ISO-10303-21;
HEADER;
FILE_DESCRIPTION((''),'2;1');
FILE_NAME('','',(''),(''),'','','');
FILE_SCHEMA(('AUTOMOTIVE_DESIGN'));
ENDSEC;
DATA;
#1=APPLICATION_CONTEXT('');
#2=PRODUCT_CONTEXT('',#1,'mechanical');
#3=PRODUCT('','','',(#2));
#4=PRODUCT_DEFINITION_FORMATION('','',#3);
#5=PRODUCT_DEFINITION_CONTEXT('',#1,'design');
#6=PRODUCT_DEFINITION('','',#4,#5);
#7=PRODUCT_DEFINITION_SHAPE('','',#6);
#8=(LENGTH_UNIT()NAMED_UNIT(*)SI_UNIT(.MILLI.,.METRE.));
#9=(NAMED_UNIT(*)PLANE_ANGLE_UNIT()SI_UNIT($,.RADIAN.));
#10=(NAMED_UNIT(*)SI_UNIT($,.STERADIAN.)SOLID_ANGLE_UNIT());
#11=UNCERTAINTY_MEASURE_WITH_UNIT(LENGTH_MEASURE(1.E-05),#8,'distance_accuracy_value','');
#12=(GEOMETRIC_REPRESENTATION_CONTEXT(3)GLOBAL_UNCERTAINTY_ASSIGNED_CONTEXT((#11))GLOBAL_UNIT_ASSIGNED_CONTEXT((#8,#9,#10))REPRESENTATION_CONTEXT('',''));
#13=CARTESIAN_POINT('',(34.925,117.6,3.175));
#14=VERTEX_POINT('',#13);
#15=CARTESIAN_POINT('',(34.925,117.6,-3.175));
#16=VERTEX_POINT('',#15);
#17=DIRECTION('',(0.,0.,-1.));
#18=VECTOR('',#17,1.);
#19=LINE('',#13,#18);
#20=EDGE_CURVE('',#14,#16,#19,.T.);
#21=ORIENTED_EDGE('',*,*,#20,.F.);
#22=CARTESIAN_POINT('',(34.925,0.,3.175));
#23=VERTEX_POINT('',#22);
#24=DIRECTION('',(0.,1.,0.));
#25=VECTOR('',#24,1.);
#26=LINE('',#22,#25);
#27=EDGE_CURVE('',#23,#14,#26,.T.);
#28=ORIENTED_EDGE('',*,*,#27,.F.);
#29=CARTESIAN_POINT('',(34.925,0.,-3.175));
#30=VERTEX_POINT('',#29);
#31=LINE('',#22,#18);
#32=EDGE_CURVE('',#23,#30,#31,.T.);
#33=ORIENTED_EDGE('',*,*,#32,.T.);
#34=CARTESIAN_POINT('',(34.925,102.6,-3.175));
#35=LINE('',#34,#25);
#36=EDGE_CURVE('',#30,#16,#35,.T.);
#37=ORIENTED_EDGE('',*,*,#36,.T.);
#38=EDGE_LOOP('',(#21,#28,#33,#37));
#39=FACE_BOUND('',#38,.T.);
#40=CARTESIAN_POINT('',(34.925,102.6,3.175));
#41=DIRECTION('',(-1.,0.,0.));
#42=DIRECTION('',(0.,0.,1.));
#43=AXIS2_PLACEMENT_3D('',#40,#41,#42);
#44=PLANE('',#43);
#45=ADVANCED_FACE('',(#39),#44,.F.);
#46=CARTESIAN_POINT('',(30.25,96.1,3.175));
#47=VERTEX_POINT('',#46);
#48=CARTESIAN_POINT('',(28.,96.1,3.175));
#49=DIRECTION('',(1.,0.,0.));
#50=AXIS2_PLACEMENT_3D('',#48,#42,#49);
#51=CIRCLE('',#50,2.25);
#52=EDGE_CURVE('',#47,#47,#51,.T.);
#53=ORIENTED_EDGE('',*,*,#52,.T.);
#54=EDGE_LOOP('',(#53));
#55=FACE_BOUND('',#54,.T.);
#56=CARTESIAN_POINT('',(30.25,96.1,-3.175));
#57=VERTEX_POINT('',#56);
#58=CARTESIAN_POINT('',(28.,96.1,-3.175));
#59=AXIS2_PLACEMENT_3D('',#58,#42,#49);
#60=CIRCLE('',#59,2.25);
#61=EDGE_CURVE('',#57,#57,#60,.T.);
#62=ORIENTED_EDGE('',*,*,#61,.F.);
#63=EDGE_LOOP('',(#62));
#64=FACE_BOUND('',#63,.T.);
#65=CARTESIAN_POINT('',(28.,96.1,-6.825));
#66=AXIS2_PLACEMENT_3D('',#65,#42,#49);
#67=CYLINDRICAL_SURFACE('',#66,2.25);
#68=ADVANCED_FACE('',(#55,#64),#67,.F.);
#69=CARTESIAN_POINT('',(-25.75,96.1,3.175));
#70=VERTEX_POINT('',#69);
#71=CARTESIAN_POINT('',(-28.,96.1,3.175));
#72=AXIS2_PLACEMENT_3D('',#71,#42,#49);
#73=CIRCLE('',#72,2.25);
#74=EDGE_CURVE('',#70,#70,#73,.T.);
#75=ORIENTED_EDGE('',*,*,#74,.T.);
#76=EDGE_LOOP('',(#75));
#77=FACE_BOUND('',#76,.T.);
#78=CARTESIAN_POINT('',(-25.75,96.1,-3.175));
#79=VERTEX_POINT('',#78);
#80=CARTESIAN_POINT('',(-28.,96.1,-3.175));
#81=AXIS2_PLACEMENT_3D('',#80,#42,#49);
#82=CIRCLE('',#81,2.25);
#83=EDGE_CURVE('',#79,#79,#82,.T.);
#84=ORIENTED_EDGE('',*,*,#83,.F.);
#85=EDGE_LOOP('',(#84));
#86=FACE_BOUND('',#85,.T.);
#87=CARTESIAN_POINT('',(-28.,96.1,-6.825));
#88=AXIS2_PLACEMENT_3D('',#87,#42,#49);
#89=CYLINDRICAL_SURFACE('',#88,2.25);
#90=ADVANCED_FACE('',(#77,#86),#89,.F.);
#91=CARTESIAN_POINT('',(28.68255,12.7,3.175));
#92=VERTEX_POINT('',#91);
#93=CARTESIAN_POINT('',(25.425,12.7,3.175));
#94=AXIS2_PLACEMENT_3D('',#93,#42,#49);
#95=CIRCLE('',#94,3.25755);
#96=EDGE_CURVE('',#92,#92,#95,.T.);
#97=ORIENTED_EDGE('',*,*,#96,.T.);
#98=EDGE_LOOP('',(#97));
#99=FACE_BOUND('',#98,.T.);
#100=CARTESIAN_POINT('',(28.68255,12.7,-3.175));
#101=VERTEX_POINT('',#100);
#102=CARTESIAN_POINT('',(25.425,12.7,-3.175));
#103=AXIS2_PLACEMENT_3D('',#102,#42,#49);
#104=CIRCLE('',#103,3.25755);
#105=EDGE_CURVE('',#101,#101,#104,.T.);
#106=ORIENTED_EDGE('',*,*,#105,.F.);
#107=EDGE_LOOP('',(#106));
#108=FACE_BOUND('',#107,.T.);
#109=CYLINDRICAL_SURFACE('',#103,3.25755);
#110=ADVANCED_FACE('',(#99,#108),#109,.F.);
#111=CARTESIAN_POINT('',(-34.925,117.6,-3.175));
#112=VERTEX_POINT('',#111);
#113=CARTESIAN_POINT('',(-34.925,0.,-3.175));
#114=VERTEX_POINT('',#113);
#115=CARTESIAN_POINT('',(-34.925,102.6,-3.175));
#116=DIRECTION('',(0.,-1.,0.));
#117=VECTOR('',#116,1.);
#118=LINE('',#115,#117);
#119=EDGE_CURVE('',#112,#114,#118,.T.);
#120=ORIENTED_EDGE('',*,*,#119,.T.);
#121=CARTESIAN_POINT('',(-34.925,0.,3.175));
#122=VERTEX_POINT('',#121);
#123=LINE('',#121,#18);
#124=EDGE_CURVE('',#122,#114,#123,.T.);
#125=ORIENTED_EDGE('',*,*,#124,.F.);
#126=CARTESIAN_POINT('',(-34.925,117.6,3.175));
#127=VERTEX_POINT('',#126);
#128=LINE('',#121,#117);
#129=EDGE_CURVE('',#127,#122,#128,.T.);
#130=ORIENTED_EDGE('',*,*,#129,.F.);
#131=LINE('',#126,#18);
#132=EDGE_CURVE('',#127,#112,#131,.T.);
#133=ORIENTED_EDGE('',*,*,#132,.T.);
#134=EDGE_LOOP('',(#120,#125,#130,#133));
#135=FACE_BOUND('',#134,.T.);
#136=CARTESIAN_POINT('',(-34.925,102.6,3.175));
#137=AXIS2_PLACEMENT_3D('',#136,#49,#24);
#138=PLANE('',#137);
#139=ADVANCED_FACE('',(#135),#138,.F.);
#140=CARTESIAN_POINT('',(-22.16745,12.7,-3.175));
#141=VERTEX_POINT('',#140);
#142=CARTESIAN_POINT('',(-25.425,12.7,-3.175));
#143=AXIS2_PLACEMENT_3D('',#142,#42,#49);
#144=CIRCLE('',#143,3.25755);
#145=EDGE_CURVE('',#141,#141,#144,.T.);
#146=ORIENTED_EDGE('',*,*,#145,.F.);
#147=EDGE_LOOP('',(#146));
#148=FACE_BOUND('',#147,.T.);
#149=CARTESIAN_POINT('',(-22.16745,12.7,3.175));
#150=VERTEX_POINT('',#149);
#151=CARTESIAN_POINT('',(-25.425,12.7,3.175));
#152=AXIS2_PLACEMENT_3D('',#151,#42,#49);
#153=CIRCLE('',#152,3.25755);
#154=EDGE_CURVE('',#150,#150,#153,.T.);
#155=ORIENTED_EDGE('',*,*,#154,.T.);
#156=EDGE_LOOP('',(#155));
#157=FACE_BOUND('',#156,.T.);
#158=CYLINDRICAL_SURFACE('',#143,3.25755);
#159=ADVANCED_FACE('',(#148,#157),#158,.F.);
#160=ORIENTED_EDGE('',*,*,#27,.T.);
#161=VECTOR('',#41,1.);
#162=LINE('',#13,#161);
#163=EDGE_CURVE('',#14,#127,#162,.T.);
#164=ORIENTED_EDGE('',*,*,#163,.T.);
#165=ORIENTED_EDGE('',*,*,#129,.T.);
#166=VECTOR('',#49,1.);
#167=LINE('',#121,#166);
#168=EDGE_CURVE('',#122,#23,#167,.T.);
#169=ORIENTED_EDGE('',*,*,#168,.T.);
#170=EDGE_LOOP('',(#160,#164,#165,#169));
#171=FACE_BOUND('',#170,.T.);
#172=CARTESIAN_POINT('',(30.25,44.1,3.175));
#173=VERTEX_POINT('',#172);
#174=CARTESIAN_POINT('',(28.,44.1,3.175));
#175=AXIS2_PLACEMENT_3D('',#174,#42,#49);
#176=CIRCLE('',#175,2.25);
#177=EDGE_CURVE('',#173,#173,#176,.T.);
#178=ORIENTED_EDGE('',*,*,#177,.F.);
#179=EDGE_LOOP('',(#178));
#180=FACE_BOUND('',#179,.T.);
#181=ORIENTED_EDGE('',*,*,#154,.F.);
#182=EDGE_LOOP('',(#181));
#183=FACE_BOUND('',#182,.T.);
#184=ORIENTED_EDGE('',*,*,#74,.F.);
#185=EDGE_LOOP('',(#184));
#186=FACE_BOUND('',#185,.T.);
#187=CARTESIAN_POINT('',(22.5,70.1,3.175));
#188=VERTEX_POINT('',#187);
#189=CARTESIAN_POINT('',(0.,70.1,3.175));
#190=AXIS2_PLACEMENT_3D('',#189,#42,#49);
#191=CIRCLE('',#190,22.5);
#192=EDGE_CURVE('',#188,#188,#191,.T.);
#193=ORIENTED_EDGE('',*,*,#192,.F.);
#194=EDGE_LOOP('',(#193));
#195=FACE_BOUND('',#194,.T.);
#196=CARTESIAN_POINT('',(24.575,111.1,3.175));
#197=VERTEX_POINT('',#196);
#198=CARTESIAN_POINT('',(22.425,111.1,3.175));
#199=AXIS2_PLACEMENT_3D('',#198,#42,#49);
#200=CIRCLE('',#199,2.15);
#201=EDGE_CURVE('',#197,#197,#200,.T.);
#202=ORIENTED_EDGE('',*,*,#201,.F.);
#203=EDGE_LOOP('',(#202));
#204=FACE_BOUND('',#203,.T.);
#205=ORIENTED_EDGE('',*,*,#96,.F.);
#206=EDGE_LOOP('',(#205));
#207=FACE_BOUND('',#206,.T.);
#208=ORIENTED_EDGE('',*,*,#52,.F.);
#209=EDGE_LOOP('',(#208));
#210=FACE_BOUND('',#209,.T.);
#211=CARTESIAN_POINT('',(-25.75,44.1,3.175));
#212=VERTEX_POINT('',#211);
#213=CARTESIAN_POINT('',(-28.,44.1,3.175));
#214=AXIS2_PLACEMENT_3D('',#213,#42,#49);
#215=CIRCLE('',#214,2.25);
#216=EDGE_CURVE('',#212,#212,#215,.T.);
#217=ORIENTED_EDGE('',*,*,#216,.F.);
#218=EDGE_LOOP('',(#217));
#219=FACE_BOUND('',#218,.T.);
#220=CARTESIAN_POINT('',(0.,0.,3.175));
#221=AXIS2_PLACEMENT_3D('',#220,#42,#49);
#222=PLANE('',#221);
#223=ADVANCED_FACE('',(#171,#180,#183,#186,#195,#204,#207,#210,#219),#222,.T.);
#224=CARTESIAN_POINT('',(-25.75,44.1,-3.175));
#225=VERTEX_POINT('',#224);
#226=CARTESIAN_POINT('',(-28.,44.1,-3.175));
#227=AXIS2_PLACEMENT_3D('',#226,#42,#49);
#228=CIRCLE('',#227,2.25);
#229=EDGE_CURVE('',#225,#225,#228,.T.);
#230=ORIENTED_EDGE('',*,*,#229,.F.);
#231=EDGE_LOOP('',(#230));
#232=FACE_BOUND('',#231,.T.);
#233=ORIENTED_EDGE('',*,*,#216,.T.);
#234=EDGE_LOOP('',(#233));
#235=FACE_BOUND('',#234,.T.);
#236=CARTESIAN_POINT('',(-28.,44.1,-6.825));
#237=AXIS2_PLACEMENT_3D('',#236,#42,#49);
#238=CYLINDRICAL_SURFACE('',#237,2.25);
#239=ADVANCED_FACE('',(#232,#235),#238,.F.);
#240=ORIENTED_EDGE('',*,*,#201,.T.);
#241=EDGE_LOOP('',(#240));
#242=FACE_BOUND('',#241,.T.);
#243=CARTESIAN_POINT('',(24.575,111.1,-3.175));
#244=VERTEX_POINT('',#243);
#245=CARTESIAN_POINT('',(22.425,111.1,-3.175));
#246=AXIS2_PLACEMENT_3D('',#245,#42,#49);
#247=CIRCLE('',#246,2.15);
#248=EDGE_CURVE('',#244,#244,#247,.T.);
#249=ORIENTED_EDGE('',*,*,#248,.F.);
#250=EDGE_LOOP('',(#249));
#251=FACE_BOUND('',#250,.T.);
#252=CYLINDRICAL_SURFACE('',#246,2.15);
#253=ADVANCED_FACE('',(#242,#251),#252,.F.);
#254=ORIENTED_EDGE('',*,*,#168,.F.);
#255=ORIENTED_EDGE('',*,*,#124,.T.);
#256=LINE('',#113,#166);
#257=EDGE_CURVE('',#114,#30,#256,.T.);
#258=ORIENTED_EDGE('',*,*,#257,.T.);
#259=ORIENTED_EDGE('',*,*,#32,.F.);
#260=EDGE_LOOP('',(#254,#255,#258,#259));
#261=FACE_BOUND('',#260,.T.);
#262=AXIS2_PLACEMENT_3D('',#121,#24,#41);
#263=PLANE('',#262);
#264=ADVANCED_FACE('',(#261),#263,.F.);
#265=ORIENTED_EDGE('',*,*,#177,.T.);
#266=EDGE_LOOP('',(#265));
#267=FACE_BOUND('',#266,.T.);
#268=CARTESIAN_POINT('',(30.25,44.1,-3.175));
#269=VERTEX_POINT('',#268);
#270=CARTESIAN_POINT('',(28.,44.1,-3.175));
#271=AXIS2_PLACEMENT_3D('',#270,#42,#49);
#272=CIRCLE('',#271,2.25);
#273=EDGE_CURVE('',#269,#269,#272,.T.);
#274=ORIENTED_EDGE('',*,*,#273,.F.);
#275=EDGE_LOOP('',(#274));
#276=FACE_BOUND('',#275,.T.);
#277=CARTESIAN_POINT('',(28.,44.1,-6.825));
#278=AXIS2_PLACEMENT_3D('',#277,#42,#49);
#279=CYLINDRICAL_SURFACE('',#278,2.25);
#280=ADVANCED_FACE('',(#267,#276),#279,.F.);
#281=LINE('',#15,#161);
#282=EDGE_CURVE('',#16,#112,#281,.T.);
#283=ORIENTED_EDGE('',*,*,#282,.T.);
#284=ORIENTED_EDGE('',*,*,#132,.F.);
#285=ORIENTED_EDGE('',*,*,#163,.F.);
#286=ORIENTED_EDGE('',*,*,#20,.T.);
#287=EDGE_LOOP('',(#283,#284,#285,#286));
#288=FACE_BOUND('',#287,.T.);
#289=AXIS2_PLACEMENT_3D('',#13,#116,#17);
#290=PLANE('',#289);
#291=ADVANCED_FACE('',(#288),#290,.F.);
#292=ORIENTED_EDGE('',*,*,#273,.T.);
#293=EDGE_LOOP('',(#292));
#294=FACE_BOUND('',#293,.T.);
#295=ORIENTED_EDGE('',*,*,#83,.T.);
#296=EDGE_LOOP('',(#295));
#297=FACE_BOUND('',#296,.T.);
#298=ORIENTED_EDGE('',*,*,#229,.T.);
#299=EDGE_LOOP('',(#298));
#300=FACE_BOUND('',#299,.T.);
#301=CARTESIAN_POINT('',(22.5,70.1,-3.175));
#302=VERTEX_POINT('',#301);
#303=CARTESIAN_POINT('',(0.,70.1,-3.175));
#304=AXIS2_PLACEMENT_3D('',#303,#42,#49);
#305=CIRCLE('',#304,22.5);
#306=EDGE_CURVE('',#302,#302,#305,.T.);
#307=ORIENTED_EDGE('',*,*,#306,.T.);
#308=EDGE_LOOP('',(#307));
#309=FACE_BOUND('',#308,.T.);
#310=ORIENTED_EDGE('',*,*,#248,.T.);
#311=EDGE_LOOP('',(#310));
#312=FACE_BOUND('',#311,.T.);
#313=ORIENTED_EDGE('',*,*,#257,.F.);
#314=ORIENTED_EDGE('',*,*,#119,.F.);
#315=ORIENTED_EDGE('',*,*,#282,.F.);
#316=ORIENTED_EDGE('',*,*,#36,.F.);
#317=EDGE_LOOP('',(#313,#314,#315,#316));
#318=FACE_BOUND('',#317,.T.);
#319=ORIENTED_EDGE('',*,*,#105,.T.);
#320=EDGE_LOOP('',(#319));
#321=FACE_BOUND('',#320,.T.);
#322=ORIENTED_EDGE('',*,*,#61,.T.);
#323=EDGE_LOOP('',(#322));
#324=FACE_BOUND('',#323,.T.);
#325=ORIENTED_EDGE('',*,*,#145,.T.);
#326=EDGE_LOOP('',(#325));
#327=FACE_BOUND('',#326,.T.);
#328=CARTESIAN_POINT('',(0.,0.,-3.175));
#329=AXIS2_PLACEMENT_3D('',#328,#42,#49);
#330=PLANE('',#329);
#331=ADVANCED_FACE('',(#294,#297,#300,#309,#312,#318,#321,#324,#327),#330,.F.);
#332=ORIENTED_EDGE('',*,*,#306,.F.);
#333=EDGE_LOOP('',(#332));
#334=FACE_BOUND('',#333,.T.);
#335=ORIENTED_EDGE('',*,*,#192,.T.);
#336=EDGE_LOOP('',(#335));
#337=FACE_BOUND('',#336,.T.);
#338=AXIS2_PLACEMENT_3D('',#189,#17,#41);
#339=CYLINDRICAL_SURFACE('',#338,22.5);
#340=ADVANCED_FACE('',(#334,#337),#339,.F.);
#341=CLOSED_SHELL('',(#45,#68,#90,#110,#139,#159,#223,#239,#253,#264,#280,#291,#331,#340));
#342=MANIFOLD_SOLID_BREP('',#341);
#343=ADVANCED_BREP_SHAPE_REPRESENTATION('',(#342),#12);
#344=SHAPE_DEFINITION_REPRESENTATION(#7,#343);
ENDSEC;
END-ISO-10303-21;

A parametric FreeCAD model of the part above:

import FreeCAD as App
import Part
import Sketcher
from FreeCAD import Vector

doc = App.newDocument("Part")
body = doc.addObject("PartDesign::Body", "Body")

sketch1 = body.newObject("Sketcher::SketchObject", "Sketch")
sketch1.AttachmentSupport = (doc.getObject("XY_Plane"), [""])
sketch1.MapMode = "FlatFace"
sketch1.addGeometry(Part.LineSegment(Vector(-34.925, 0, 0), Vector(34.925, 0, 0)), False)
sketch1.addGeometry(Part.LineSegment(Vector(34.925, 0, 0), Vector(34.925, 117.6, 0)), False)
sketch1.addGeometry(Part.LineSegment(Vector(34.925, 117.6, 0), Vector(-34.925, 117.6, 0)), False)
sketch1.addGeometry(Part.LineSegment(Vector(-34.925, 117.6, 0), Vector(-34.925, 0, 0)), False)
sketch1.addGeometry(Part.Circle(Vector(0, 70.1, 0), Vector(0, 0, 1), 22.5), False)
sketch1.addConstraint(Sketcher.Constraint("Coincident", 0, 2, 1, 1))
sketch1.addConstraint(Sketcher.Constraint("Coincident", 1, 2, 2, 1))
sketch1.addConstraint(Sketcher.Constraint("Coincident", 2, 2, 3, 1))
sketch1.addConstraint(Sketcher.Constraint("Coincident", 3, 2, 0, 1))
sketch1.addConstraint(Sketcher.Constraint("Horizontal", 0))
sketch1.addConstraint(Sketcher.Constraint("Vertical", 1))
sketch1.addConstraint(Sketcher.Constraint("Horizontal", 2))
sketch1.addConstraint(Sketcher.Constraint("Vertical", 3))
sketch1.addConstraint(Sketcher.Constraint("Symmetric", 0, 2, 3, 2, -1, 1))
sketch1.addConstraint(Sketcher.Constraint("PointOnObject", 4, 3, -2))
sketch1.addConstraint(Sketcher.Constraint("Diameter", 4, 45.0))
sketch1.addConstraint(Sketcher.Constraint("DistanceY", 1, 1, 1, 2, 117.6))
sketch1.addConstraint(Sketcher.Constraint("DistanceX", 0, 1, 0, 2, 69.85))
sketch1.addConstraint(Sketcher.Constraint("DistanceY", -1, 1, 4, 3, 70.1))
pad1 = body.newObject("PartDesign::Pad", "Pad")
pad1.Profile = sketch1
pad1.Length = 6.35
pad1.Midplane = True

sketch2 = body.newObject("Sketcher::SketchObject", "Sketch001")
sketch2.AttachmentSupport = (doc.getObject("XY_Plane"), [""])
sketch2.MapMode = "FlatFace"
sketch2.AttachmentOffset = App.Placement(Vector(0, 0, 3.175), App.Rotation())
sketch2.addGeometry(Part.Circle(Vector(-25.425, 12.7, 0), Vector(0, 0, 1), 3.25755), False)
sketch2.addGeometry(Part.Circle(Vector(25.425, 12.7, 0), Vector(0, 0, 1), 3.25755), False)
sketch2.addGeometry(Part.Circle(Vector(22.425, 111.1, 0), Vector(0, 0, 1), 2.15), False)
sketch2.addConstraint(Sketcher.Constraint("Equal", 0, 1))
sketch2.addConstraint(Sketcher.Constraint("Symmetric", 0, 3, 1, 3, -2))
sketch2.addConstraint(Sketcher.Constraint("Diameter", 2, 4.3))
sketch2.addConstraint(Sketcher.Constraint("DistanceX", 2, 3, 1, 3, 3.0))
sketch2.addConstraint(Sketcher.Constraint("Diameter", 0, 6.5151))
sketch2.addConstraint(Sketcher.Constraint("DistanceY", -1, 1, 0, 3, 12.7))
sketch2.addConstraint(Sketcher.Constraint("DistanceY", -1, 1, 2, 3, 111.1))
sketch2.addConstraint(Sketcher.Constraint("DistanceX", 0, 3, 1, 3, 50.85))
pocket1 = body.newObject("PartDesign::Pocket", "Pocket")
pocket1.Profile = sketch2
pocket1.Type = "ThroughAll"
pocket1.Midplane = True

sketch3 = body.newObject("Sketcher::SketchObject", "Sketch002")
sketch3.AttachmentSupport = (doc.getObject("XY_Plane"), [""])
sketch3.MapMode = "FlatFace"
sketch3.AttachmentOffset = App.Placement(Vector(0, 0, 3.175), App.Rotation())
sketch3.addGeometry(Part.Circle(Vector(28, 96.1, 0), Vector(0, 0, 1), 2.25), False)
sketch3.addGeometry(Part.Circle(Vector(-28, 44.1, 0), Vector(0, 0, 1), 2.25), False)
sketch3.addGeometry(Part.Circle(Vector(28, 44.1, 0), Vector(0, 0, 1), 2.25), False)
sketch3.addGeometry(Part.Circle(Vector(-28, 96.1, 0), Vector(0, 0, 1), 2.25), False)
sketch3.addConstraint(Sketcher.Constraint("Equal", 0, 1))
sketch3.addConstraint(Sketcher.Constraint("Equal", 1, 2))
sketch3.addConstraint(Sketcher.Constraint("Equal", 2, 3))
sketch3.addConstraint(Sketcher.Constraint("Symmetric", 1, 3, 2, 3, -2))
sketch3.addConstraint(Sketcher.Constraint("Symmetric", 0, 3, 3, 3, -2))
sketch3.addConstraint(Sketcher.Constraint("Vertical", 0, 3, 2, 3))
sketch3.addConstraint(Sketcher.Constraint("Diameter", 0, 4.5))
sketch3.addConstraint(Sketcher.Constraint("DistanceX", -1, 1, 0, 3, 28.0))
sketch3.addConstraint(Sketcher.Constraint("DistanceY", 1, 3, 0, 3, 52.0))
sketch3.addConstraint(Sketcher.Constraint("DistanceY", -1, 1, 0, 3, 96.1))
pocket2 = body.newObject("PartDesign::Pocket", "Pocket001")
pocket2.Profile = sketch3
pocket2.Length = 10

doc.recompute()
